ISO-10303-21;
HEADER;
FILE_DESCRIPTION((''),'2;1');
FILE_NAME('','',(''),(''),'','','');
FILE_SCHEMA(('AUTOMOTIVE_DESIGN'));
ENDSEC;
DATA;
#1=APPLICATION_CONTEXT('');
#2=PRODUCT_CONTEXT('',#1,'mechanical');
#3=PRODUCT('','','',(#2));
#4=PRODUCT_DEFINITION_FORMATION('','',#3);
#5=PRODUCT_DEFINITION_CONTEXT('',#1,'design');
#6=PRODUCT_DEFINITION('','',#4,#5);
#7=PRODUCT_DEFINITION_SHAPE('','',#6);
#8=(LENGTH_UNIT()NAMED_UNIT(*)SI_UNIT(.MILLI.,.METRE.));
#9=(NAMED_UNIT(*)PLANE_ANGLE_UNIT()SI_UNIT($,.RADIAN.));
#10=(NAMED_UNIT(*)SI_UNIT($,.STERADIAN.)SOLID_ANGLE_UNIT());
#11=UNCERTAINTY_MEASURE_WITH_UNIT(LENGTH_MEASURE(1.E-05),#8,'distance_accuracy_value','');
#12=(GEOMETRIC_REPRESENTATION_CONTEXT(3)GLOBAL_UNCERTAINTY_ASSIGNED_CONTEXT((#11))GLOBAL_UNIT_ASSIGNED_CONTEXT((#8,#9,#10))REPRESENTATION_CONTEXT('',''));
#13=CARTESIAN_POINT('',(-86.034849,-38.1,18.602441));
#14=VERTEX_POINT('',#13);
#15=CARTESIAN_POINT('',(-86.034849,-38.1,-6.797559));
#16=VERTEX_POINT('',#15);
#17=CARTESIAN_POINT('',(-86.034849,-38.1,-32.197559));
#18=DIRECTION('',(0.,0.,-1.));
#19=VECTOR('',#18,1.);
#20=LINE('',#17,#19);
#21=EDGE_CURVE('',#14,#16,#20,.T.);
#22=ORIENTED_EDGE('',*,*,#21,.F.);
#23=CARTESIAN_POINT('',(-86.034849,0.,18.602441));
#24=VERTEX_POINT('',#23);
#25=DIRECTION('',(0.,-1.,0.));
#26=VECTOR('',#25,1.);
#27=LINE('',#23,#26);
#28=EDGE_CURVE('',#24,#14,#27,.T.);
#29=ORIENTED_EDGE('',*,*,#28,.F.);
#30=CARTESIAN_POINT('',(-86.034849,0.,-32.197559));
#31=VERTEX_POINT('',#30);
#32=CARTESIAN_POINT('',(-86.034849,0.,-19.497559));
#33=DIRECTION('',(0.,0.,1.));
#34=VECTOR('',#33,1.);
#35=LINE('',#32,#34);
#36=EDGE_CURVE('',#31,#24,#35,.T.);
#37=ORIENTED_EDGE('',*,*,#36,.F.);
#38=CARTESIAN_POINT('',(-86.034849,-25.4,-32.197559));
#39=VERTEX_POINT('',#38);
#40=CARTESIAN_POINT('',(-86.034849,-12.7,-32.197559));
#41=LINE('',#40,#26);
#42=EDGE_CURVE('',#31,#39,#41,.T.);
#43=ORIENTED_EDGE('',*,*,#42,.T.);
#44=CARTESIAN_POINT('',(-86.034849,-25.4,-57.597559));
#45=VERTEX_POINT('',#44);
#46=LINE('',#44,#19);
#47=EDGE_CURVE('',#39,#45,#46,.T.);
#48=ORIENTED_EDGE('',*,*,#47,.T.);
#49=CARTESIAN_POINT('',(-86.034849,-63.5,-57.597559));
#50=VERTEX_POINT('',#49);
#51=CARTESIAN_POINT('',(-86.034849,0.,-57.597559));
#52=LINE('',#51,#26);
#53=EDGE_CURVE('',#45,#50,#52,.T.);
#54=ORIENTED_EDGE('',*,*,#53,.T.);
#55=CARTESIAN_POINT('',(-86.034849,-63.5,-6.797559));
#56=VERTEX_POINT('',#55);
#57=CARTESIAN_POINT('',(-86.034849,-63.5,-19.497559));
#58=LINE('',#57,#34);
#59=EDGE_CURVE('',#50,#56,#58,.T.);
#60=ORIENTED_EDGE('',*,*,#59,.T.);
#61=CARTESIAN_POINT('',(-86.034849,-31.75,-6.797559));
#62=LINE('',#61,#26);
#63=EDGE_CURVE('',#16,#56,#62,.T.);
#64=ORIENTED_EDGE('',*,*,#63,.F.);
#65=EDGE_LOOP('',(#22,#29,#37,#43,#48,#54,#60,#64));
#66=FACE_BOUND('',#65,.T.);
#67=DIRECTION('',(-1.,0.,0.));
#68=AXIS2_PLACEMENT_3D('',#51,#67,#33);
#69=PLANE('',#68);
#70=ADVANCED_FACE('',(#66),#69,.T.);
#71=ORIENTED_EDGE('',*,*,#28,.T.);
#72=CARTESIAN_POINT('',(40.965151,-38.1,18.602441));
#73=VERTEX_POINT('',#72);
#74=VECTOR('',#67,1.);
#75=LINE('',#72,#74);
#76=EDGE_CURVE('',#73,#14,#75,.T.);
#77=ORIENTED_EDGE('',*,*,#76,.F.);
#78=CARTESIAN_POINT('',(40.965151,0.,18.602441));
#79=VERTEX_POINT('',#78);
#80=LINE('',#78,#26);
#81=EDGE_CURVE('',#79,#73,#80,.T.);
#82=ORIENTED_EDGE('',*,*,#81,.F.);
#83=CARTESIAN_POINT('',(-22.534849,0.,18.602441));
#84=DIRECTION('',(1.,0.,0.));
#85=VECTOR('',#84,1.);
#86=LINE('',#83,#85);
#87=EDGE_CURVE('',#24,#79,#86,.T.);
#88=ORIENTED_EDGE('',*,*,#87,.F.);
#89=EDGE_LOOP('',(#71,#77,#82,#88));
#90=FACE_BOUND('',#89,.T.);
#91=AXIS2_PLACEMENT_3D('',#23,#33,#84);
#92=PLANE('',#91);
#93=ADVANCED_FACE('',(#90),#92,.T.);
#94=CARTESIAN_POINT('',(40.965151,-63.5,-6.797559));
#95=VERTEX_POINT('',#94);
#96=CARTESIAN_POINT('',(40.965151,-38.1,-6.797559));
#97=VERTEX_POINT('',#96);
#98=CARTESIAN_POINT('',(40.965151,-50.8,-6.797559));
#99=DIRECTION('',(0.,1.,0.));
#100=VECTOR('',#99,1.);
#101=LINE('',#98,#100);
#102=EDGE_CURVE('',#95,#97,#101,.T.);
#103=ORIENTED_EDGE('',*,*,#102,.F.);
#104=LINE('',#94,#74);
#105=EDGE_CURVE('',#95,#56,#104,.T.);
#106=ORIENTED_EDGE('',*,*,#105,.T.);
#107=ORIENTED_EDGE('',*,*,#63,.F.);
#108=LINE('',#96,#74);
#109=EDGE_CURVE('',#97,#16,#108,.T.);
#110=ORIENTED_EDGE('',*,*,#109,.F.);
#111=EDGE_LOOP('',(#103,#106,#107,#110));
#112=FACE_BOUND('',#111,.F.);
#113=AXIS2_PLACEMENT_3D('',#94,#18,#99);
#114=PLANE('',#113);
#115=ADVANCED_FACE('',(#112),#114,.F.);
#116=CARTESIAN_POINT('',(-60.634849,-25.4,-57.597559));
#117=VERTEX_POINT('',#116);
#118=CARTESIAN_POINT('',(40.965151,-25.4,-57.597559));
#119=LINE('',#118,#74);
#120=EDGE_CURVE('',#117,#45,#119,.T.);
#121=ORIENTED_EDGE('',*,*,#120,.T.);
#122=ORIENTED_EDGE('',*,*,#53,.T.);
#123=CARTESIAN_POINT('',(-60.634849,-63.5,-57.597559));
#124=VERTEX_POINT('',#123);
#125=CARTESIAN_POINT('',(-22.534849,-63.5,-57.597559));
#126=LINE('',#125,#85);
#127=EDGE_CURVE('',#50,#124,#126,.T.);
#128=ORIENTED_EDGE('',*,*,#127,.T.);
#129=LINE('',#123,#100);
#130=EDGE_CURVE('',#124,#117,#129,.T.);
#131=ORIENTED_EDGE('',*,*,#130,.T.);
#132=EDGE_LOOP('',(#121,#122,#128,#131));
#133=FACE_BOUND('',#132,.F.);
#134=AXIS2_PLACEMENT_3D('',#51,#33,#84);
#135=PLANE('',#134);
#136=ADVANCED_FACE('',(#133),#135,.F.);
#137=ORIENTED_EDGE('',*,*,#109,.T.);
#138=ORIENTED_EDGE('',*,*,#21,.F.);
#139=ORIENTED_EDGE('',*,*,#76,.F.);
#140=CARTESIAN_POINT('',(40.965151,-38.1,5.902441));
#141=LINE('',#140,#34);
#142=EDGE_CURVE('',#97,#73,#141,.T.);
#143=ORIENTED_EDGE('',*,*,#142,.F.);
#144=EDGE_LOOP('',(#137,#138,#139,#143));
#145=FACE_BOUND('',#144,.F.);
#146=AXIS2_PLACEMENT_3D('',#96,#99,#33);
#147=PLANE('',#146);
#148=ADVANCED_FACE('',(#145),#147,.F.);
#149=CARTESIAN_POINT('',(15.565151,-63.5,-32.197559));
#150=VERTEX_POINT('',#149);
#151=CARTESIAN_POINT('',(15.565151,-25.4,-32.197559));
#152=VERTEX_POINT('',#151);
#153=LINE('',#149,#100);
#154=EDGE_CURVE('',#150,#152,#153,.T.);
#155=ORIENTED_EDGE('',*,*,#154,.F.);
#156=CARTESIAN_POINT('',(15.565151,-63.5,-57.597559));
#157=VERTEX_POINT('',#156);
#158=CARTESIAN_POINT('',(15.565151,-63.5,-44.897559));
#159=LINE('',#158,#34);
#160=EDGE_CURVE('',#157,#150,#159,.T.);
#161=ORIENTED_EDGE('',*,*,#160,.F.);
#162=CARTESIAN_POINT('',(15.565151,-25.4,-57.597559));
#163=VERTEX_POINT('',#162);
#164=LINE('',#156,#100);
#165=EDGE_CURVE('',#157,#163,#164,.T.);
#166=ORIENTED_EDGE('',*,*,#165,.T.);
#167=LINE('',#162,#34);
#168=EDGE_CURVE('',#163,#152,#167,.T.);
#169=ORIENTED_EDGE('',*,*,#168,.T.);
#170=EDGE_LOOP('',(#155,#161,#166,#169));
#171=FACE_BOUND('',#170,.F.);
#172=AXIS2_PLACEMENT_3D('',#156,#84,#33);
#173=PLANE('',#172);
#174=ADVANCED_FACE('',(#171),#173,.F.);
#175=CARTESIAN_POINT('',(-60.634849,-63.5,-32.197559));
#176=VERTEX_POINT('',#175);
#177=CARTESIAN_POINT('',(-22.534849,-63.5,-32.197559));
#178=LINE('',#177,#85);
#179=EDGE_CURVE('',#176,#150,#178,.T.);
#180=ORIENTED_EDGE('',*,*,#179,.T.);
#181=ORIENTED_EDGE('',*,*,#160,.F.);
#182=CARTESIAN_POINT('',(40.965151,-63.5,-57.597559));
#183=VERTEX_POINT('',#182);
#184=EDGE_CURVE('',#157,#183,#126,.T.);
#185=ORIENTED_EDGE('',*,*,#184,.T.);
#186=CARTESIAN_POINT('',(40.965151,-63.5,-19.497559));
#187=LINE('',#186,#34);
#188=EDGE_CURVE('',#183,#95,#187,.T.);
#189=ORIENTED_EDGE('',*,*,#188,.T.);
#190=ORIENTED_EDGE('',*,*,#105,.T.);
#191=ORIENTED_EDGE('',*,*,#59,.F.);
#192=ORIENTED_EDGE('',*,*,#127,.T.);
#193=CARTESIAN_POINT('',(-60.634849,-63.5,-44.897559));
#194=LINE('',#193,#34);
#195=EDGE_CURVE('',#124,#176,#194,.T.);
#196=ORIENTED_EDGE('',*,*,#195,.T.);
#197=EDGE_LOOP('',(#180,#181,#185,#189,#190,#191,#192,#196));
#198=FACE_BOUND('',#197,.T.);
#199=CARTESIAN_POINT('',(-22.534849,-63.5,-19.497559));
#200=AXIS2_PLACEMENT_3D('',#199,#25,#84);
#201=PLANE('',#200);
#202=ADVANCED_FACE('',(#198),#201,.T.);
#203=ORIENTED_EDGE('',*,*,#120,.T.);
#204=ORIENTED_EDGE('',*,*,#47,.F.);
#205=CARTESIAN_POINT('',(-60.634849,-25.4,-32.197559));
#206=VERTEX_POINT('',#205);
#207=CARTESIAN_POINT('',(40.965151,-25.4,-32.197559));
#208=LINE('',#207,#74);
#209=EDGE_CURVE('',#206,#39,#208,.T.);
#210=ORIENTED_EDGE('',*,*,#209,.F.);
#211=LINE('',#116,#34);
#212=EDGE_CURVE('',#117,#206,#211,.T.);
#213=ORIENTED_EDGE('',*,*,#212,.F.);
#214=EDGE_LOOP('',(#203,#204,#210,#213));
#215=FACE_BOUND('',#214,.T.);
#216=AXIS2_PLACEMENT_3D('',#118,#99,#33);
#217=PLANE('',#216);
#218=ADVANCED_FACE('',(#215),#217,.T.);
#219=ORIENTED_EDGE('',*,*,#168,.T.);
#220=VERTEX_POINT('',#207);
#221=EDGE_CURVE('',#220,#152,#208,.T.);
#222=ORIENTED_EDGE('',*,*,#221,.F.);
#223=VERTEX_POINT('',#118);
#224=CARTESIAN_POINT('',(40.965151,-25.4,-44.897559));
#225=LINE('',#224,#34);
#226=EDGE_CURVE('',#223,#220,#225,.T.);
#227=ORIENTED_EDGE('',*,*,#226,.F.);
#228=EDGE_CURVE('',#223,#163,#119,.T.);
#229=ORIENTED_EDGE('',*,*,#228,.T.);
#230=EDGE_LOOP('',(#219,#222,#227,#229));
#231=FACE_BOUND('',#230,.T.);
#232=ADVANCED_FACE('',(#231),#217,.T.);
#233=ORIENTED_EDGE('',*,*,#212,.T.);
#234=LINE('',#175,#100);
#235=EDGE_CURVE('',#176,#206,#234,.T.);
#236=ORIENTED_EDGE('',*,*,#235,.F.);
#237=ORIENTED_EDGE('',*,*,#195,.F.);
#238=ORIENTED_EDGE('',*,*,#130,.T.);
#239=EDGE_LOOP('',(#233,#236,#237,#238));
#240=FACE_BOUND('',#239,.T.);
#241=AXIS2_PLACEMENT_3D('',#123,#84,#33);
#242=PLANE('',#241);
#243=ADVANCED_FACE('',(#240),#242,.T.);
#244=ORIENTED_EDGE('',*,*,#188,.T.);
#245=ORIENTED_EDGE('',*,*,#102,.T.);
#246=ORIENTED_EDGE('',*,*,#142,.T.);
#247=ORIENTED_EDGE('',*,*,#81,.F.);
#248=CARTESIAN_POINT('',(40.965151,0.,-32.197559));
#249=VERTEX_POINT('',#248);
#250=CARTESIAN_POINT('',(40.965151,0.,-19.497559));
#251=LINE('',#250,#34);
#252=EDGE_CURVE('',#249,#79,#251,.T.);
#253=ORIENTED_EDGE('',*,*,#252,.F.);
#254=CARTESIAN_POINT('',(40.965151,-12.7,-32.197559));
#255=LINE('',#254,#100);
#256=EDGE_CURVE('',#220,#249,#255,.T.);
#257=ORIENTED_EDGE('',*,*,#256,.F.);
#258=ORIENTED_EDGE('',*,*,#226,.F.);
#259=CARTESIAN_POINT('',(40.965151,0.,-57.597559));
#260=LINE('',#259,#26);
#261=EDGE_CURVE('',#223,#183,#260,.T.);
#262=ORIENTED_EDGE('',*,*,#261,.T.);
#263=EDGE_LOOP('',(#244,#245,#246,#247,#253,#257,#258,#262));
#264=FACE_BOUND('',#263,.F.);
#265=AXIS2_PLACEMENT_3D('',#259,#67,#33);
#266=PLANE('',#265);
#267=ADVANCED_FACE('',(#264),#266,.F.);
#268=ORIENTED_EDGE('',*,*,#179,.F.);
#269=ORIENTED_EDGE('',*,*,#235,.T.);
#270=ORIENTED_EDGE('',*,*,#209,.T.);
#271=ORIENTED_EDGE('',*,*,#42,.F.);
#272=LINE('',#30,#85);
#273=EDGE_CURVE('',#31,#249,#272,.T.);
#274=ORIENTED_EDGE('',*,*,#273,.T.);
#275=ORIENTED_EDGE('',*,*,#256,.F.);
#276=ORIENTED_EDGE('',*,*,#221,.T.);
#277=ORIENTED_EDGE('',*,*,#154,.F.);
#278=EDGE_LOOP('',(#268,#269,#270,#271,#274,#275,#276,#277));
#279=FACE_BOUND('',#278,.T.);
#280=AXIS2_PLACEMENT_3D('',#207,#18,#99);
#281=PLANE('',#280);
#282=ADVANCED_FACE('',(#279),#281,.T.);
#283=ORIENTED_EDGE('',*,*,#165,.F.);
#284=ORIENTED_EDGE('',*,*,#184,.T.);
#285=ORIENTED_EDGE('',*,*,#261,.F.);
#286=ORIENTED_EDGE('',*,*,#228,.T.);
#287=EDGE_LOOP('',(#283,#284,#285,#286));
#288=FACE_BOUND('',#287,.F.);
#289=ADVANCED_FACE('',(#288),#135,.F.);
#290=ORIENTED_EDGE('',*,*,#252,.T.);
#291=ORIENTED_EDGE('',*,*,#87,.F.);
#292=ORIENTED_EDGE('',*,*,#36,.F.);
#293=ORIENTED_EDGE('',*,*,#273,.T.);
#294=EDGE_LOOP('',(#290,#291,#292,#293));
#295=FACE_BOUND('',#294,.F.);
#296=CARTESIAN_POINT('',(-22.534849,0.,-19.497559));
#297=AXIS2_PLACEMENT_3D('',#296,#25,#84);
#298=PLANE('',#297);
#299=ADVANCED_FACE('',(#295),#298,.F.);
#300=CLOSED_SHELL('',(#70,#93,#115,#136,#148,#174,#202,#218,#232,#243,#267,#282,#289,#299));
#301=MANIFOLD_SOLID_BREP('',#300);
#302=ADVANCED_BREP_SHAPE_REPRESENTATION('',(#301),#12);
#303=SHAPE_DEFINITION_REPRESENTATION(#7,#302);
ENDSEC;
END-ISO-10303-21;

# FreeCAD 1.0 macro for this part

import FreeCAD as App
import Part
import Sketcher

V = App.Vector
Q = App.Units.Quantity

doc = App.newDocument("Part")
params = doc.addObject("Spreadsheet::Sheet", "Params")
for row, (alias, value) in enumerate([
    ("sketch1_width", "5 in"),
    ("sketch1_height", "3 in"),
    ("pad1_length", "2.5 in"),
    ("sketch2_width", "3 in"),
    ("sketch2_height", "1 in"),
    ("sketch3_width", "1 in"),
], start=1):
    params.set(f"A{row}", alias)
    params.set(f"B{row}", "=" + value)
    params.setAlias(f"B{row}", alias)

body = doc.addObject("PartDesign::Body", "Body")

sketch1 = body.newObject("Sketcher::SketchObject", "Sketch")
sketch1.AttachmentSupport = (doc.getObject("XZ_Plane"), [""])
sketch1.MapMode = "FlatFace"
sketch1.addGeometry(Part.LineSegment(V(-86.034849, 18.602441, 0), V(-86.034849, -57.597559, 0)), False)
sketch1.addGeometry(Part.LineSegment(V(-86.034849, -57.597559, 0), V(40.965151, -57.597559, 0)), False)
sketch1.addGeometry(Part.LineSegment(V(40.965151, -57.597559, 0), V(40.965151, 18.602441, 0)), False)
sketch1.addGeometry(Part.LineSegment(V(40.965151, 18.602441, 0), V(-86.034849, 18.602441, 0)), False)
sketch1.addConstraint(Sketcher.Constraint("Coincident", 0, 2, 1, 1))
sketch1.addConstraint(Sketcher.Constraint("Coincident", 1, 2, 2, 1))
sketch1.addConstraint(Sketcher.Constraint("Coincident", 2, 2, 3, 1))
sketch1.addConstraint(Sketcher.Constraint("Coincident", 3, 2, 0, 1))
sketch1.addConstraint(Sketcher.Constraint("Vertical", 0))
sketch1.addConstraint(Sketcher.Constraint("Horizontal", 1))
sketch1.addConstraint(Sketcher.Constraint("Vertical", 2))
sketch1.addConstraint(Sketcher.Constraint("Horizontal", 3))
sketch1.addConstraint(Sketcher.Constraint("DistanceX", 1, 1, 1, 2, Q("5 in")))
sketch1.addConstraint(Sketcher.Constraint("DistanceY", 0, 2, 0, 1, Q("3 in")))
sketch1.addConstraint(Sketcher.Constraint("DistanceX", 0, 2, -1, 1, 86.034849))
sketch1.addConstraint(Sketcher.Constraint("DistanceY", 0, 2, -1, 1, 57.597559))
sketch1.setExpression("Constraints[8]", "Params.sketch1_width")
sketch1.setExpression("Constraints[9]", "Params.sketch1_height")
pad1 = body.newObject("PartDesign::Pad", "Pad")
pad1.Profile = sketch1
pad1.setExpression("Length", "Params.pad1_length")

sketch2 = body.newObject("Sketcher::SketchObject", "Sketch001")
sketch2.AttachmentSupport = (doc.getObject("XZ_Plane"), [""])
sketch2.MapMode = "FlatFace"
sketch2.AttachmentOffset = App.Placement(V(0, 0, 2.5 * 25.4), App.Rotation())
sketch2.addGeometry(Part.LineSegment(V(-60.634849, -32.197559, 0), V(-60.634849, -57.597559, 0)), False)
sketch2.addGeometry(Part.LineSegment(V(-60.634849, -57.597559, 0), V(15.565151, -57.597559, 0)), False)
sketch2.addGeometry(Part.LineSegment(V(15.565151, -57.597559, 0), V(15.565151, -32.197559, 0)), False)
sketch2.addGeometry(Part.LineSegment(V(15.565151, -32.197559, 0), V(-60.634849, -32.197559, 0)), False)
sketch2.addConstraint(Sketcher.Constraint("Coincident", 0, 2, 1, 1))
sketch2.addConstraint(Sketcher.Constraint("Coincident", 1, 2, 2, 1))
sketch2.addConstraint(Sketcher.Constraint("Coincident", 2, 2, 3, 1))
sketch2.addConstraint(Sketcher.Constraint("Coincident", 3, 2, 0, 1))
sketch2.addConstraint(Sketcher.Constraint("Vertical", 0))
sketch2.addConstraint(Sketcher.Constraint("Horizontal", 1))
sketch2.addConstraint(Sketcher.Constraint("Vertical", 2))
sketch2.addConstraint(Sketcher.Constraint("Horizontal", 3))
sketch2.addConstraint(Sketcher.Constraint("DistanceX", 1, 1, 1, 2, Q("3 in")))
sketch2.addConstraint(Sketcher.Constraint("DistanceY", 0, 2, 0, 1, Q("1 in")))
sketch2.addConstraint(Sketcher.Constraint("DistanceX", 0, 2, -1, 1, 60.634849))
sketch2.addConstraint(Sketcher.Constraint("DistanceY", 0, 2, -1, 1, 57.597559))
sketch2.setExpression("Constraints[8]", "Params.sketch2_width")
sketch2.setExpression("Constraints[9]", "Params.sketch2_height")
pocket1 = body.newObject("PartDesign::Pocket", "Pocket")
pocket1.Profile = sketch2
pocket1.Type = "ThroughAll"

sketch3 = body.newObject("Sketcher::SketchObject", "Sketch002")
sketch3.AttachmentSupport = (doc.getObject("YZ_Plane"), [""])
sketch3.MapMode = "FlatFace"
sketch3.AttachmentOffset = App.Placement(V(0, 0, 40.965151), App.Rotation())
sketch3.addGeometry(Part.LineSegment(V(-25.4, -32.197559, 0), V(-25.4, -57.597559, 0)), False)
sketch3.addGeometry(Part.LineSegment(V(-25.4, -57.597559, 0), V(0, -57.597559, 0)), False)
sketch3.addGeometry(Part.LineSegment(V(0, -57.597559, 0), V(0, -32.197559, 0)), False)
sketch3.addGeometry(Part.LineSegment(V(0, -32.197559, 0), V(-25.4, -32.197559, 0)), False)
sketch3.addGeometry(Part.LineSegment(V(-63.5, 18.602441, 0), V(-63.5, -6.797559, 0)), False)
sketch3.addGeometry(Part.LineSegment(V(-63.5, -6.797559, 0), V(-38.1, -6.797559, 0)), False)
sketch3.addGeometry(Part.LineSegment(V(-38.1, -6.797559, 0), V(-38.1, 18.602441, 0)), False)
sketch3.addGeometry(Part.LineSegment(V(-38.1, 18.602441, 0), V(-63.5, 18.602441, 0)), False)
sketch3.addConstraint(Sketcher.Constraint("Coincident", 0, 2, 1, 1))
sketch3.addConstraint(Sketcher.Constraint("Coincident", 1, 2, 2, 1))
sketch3.addConstraint(Sketcher.Constraint("Coincident", 2, 2, 3, 1))
sketch3.addConstraint(Sketcher.Constraint("Coincident", 3, 2, 0, 1))
sketch3.addConstraint(Sketcher.Constraint("Coincident", 4, 2, 5, 1))
sketch3.addConstraint(Sketcher.Constraint("Coincident", 5, 2, 6, 1))
sketch3.addConstraint(Sketcher.Constraint("Coincident", 6, 2, 7, 1))
sketch3.addConstraint(Sketcher.Constraint("Coincident", 7, 2, 4, 1))
sketch3.addConstraint(Sketcher.Constraint("Vertical", 0))
sketch3.addConstraint(Sketcher.Constraint("Horizontal", 1))
sketch3.addConstraint(Sketcher.Constraint("Vertical", 2))
sketch3.addConstraint(Sketcher.Constraint("Horizontal", 3))
sketch3.addConstraint(Sketcher.Constraint("Vertical", 4))
sketch3.addConstraint(Sketcher.Constraint("Horizontal", 5))
sketch3.addConstraint(Sketcher.Constraint("Vertical", 6))
sketch3.addConstraint(Sketcher.Constraint("Horizontal", 7))
sketch3.addConstraint(Sketcher.Constraint("PointOnObject", 1, 2, -2))
sketch3.addConstraint(Sketcher.Constraint("Equal", 3, 5))
sketch3.addConstraint(Sketcher.Constraint("Equal", 7, 0))
sketch3.addConstraint(Sketcher.Constraint("Equal", 2, 4))
sketch3.addConstraint(Sketcher.Constraint("DistanceX", 1, 1, 1, 2, Q("1 in")))
sketch3.addConstraint(Sketcher.Constraint("DistanceY", 3, 2, 4, 2, Q("1 in")))
sketch3.addConstraint(Sketcher.Constraint("DistanceX", 4, 2, -1, 1, Q("2.5 in")))
sketch3.addConstraint(Sketcher.Constraint("DistanceY", 0, 2, -1, 1, 57.597559))
sketch3.setExpression("Constraints[20]", "Params.sketch3_width")
pocket2 = body.newObject("PartDesign::Pocket", "Pocket001")
pocket2.Profile = sketch3
pocket2.Type = "ThroughAll"

doc.recompute()
